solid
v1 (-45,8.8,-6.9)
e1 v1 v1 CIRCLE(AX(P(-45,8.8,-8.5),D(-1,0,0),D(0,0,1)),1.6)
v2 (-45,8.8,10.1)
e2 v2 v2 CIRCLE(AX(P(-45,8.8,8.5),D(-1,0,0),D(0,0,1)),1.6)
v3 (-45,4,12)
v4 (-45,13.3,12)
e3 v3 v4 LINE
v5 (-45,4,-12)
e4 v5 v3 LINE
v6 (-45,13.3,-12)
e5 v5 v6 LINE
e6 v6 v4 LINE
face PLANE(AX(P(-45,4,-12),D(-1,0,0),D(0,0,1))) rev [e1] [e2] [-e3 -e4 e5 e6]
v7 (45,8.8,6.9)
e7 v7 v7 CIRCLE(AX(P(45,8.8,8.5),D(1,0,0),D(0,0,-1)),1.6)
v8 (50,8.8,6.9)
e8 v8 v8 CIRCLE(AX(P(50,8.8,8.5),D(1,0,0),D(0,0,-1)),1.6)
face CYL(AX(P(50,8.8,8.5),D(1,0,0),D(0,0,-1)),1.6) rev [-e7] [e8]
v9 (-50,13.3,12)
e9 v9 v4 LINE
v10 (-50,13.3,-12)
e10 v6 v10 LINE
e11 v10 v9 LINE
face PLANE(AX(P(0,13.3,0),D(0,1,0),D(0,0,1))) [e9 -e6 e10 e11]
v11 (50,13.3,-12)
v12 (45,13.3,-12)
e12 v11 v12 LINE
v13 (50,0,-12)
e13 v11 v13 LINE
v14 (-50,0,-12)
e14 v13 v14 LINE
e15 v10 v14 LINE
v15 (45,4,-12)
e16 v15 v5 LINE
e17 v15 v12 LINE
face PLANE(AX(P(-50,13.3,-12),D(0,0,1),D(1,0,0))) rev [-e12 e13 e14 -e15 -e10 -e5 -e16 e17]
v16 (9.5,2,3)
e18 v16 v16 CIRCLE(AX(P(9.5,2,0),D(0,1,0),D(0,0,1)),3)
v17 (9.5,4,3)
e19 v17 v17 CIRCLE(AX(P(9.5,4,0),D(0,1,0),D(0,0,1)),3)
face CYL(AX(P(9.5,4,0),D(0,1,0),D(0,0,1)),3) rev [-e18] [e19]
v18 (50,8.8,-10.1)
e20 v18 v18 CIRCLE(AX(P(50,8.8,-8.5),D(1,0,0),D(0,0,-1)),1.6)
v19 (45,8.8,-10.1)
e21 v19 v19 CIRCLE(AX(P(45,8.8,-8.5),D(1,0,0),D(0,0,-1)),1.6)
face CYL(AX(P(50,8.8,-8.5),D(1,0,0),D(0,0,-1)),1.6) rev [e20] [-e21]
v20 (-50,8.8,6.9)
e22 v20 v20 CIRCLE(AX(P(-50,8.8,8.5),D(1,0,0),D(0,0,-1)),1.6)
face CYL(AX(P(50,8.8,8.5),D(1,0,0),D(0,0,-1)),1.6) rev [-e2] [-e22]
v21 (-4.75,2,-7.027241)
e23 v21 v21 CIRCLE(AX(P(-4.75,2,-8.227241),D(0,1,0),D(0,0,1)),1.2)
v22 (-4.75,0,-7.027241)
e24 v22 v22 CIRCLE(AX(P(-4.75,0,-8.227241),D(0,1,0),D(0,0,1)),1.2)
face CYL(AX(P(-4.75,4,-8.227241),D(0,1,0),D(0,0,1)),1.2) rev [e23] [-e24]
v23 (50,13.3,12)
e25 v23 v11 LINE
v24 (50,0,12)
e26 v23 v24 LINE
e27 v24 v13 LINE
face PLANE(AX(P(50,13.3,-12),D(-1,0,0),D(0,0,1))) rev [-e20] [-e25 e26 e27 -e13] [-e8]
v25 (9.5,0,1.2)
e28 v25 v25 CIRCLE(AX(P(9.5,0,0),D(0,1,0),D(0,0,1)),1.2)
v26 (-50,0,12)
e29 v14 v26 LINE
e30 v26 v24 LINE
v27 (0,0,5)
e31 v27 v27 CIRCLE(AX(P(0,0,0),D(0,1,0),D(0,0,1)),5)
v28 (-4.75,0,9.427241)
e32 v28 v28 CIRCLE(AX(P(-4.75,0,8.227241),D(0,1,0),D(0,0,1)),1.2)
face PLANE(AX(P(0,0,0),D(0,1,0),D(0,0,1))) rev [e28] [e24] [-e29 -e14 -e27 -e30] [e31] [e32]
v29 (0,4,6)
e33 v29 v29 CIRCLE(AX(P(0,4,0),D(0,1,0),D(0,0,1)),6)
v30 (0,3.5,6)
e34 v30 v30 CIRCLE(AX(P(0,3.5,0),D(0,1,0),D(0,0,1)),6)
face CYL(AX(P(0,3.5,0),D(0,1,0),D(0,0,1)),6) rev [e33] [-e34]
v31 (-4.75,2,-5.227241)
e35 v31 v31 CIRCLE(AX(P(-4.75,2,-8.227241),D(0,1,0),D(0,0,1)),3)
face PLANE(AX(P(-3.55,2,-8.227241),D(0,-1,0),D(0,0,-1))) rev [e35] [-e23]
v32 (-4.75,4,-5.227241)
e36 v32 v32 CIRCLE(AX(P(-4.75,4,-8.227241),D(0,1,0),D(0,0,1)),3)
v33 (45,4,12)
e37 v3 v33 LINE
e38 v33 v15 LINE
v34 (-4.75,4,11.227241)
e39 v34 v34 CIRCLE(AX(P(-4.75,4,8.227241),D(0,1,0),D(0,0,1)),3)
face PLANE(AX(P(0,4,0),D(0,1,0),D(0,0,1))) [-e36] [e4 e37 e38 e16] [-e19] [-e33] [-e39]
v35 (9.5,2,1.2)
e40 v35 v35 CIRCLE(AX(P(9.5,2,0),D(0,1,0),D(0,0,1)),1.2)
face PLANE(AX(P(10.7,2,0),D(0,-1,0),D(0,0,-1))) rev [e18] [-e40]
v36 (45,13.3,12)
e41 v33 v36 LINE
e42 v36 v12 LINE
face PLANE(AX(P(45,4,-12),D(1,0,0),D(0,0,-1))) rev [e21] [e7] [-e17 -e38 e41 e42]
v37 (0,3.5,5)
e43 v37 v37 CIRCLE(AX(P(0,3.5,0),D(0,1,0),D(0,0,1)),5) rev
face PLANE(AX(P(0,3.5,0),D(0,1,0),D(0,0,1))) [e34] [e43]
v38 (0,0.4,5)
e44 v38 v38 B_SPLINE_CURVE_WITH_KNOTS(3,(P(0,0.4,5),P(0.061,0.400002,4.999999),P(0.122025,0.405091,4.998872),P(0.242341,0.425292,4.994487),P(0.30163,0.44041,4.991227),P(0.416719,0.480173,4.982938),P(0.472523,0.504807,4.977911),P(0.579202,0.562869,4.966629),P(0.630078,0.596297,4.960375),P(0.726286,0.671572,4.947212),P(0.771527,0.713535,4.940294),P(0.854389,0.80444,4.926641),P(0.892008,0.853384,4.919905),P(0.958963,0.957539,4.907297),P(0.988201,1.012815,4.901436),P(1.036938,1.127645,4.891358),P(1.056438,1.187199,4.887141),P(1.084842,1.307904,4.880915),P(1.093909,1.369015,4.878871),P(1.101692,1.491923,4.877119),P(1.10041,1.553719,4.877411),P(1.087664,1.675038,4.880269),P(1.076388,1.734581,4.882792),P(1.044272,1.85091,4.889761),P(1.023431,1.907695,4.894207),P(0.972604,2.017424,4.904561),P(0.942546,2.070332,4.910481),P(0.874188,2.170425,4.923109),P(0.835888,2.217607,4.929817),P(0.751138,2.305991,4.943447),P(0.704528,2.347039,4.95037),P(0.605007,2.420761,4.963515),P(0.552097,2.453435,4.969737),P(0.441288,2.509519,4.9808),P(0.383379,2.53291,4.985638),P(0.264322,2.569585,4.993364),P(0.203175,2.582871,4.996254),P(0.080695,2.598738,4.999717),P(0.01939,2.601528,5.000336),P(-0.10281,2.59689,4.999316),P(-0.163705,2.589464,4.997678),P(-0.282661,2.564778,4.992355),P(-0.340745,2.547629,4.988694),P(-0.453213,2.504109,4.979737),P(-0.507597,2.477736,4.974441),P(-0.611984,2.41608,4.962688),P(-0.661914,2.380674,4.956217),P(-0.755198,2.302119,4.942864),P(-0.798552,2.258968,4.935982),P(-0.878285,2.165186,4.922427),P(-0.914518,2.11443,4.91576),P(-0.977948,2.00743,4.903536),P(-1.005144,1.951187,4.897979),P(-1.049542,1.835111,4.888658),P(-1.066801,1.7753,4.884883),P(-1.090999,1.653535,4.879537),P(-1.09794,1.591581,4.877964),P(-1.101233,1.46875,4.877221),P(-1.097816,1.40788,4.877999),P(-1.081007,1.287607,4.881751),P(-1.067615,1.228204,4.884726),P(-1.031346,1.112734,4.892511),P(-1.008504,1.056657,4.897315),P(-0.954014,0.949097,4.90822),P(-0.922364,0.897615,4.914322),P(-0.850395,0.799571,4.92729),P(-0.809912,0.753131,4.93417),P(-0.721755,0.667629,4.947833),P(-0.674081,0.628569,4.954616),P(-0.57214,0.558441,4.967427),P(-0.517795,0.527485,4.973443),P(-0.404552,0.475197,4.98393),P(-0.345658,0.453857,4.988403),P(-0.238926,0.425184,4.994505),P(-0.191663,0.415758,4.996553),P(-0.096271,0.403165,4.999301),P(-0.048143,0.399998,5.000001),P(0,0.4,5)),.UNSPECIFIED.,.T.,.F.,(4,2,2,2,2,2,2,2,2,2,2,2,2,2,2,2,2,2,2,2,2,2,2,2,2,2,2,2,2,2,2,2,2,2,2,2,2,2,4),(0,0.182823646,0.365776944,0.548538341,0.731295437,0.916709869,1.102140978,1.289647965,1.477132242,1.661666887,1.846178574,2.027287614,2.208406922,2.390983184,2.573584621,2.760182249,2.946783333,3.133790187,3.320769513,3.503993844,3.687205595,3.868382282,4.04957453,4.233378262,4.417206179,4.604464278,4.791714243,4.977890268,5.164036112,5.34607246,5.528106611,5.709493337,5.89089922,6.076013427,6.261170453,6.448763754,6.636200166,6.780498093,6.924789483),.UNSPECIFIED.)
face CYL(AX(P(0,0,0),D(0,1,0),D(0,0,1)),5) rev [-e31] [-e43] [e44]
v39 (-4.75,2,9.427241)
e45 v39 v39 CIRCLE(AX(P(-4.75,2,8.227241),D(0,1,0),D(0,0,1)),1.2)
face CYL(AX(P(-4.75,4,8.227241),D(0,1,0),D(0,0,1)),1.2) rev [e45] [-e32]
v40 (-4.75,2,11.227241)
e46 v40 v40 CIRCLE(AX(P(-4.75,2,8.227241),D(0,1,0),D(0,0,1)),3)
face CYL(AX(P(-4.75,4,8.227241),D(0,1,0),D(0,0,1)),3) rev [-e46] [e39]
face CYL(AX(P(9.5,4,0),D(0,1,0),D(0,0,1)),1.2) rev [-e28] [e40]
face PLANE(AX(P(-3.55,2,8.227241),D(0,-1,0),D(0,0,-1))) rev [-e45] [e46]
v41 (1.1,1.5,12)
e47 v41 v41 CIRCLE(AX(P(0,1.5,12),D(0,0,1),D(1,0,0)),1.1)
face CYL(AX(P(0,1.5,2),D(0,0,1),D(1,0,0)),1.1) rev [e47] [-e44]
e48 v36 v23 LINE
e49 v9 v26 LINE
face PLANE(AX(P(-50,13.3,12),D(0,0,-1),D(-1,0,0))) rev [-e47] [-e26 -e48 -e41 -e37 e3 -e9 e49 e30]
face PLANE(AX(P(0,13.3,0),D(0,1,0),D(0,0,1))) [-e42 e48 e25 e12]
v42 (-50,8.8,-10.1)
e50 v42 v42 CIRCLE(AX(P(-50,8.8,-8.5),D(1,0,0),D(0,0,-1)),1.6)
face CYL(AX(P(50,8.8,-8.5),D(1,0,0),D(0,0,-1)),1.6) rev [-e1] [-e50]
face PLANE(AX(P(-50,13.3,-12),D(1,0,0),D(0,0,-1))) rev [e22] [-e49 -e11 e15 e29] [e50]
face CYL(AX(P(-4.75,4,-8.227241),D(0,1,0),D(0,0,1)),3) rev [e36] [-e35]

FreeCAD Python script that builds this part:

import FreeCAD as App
import Part
import Sketcher

V = App.Vector

doc = App.newDocument("Part")
params = doc.addObject("Spreadsheet::Sheet", "Params")
for row, (alias, value) in enumerate([
    ("sketch1_width", "100 mm"),
    ("sketch1_height", "24 mm"),
    ("pad1_length", "13.3 mm"),
    ("sketch2_width", "90 mm"),
    ("sketch2_height", "24 mm"),
    ("pocket1_length", "9.3 mm"),
    ("sketch3_diameter", "3.2 mm"),
    ("hole_diameter", "3.2 mm"),
    ("sketch4_diameter", "10 mm"),
    ("sketch5_diameter", "12 mm"),
    ("pocket3_length", "0.5 mm"),
    ("sketch6_diameter", "2.4 mm"),
    ("hole2_diameter", "2.4 mm"),
    ("hole2_cbore_diameter", "6 mm"),
    ("hole2_cbore_depth", "2 mm"),
    ("sketch7_diameter", "2.2 mm"),
    ("pocket4_length", "10 mm"),
], start=1):
    params.set(f"A{row}", alias)
    params.set(f"B{row}", "=" + value)
    params.setAlias(f"B{row}", alias)

body = doc.addObject("PartDesign::Body", "Body")

# Sketch on XZ plane
sketch1 = doc.addObject("Sketcher::SketchObject", "Sketch")
body.addObject(sketch1)
sketch1.AttachmentSupport = (doc.XZ_Plane, [""])
sketch1.MapMode = "FlatFace"
sketch1.addGeometry([
    Part.LineSegment(V(-50, -12, 0), V(-50, 12, 0)),
    Part.LineSegment(V(-50, 12, 0), V(50, 12, 0)),
    Part.LineSegment(V(50, 12, 0), V(50, -12, 0)),
    Part.LineSegment(V(50, -12, 0), V(-50, -12, 0)),
], False)
sketch1.addConstraint([
    Sketcher.Constraint("Coincident", 0, 2, 1, 1),
    Sketcher.Constraint("Coincident", 1, 2, 2, 1),
    Sketcher.Constraint("Coincident", 2, 2, 3, 1),
    Sketcher.Constraint("Coincident", 3, 2, 0, 1),
    Sketcher.Constraint("Vertical", 0),
    Sketcher.Constraint("Horizontal", 1),
    Sketcher.Constraint("Vertical", 2),
    Sketcher.Constraint("Horizontal", 3),
    Sketcher.Constraint("Symmetric", 0, 2, 2, 2, -1, 1),
    Sketcher.Constraint("DistanceX", 1, 1, 1, 2, 100.0),
    Sketcher.Constraint("DistanceY", 0, 1, 0, 2, 24.0),
])
sketch1.setExpression("Constraints[9]", "Params.sketch1_width")
sketch1.setExpression("Constraints[10]", "Params.sketch1_height")
pad1 = doc.addObject("PartDesign::Pad", "Pad")
body.addObject(pad1)
pad1.Profile = sketch1
pad1.setExpression("Length", "Params.pad1_length")
pad1.Reversed = True

# Sketch on XZ plane
sketch2 = doc.addObject("Sketcher::SketchObject", "Sketch001")
body.addObject(sketch2)
sketch2.AttachmentSupport = (doc.XZ_Plane, [""])
sketch2.MapMode = "FlatFace"
sketch2.AttachmentOffset = App.Placement(V(0, 0, -13.3), App.Rotation())
sketch2.addGeometry([
    Part.LineSegment(V(-45, -12, 0), V(-45, 12, 0)),
    Part.LineSegment(V(-45, 12, 0), V(45, 12, 0)),
    Part.LineSegment(V(45, 12, 0), V(45, -12, 0)),
    Part.LineSegment(V(45, -12, 0), V(-45, -12, 0)),
], False)
sketch2.addConstraint([
    Sketcher.Constraint("Coincident", 0, 2, 1, 1),
    Sketcher.Constraint("Coincident", 1, 2, 2, 1),
    Sketcher.Constraint("Coincident", 2, 2, 3, 1),
    Sketcher.Constraint("Coincident", 3, 2, 0, 1),
    Sketcher.Constraint("Vertical", 0),
    Sketcher.Constraint("Horizontal", 1),
    Sketcher.Constraint("Vertical", 2),
    Sketcher.Constraint("Horizontal", 3),
    Sketcher.Constraint("Symmetric", 0, 2, 2, 2, -1, 1),
    Sketcher.Constraint("DistanceX", 1, 1, 1, 2, 90.0),
    Sketcher.Constraint("DistanceY", 0, 1, 0, 2, 24.0),
])
sketch2.setExpression("Constraints[9]", "Params.sketch2_width")
sketch2.setExpression("Constraints[10]", "Params.sketch2_height")
pocket1 = doc.addObject("PartDesign::Pocket", "Pocket")
body.addObject(pocket1)
pocket1.Profile = sketch2
pocket1.setExpression("Length", "Params.pocket1_length")
pocket1.Reversed = True

# Sketch on YZ plane
sketch3 = doc.addObject("Sketcher::SketchObject", "Sketch002")
body.addObject(sketch3)
sketch3.AttachmentSupport = (doc.YZ_Plane, [""])
sketch3.MapMode = "FlatFace"
sketch3.AttachmentOffset = App.Placement(V(0, 0, 50), App.Rotation())
sketch3.addGeometry([
    Part.Circle(V(8.8, -8.5, 0), V(0, 0, 1), 1.6),
    Part.Circle(V(8.8, 8.5, 0), V(0, 0, 1), 1.6),
], False)
sketch3.addConstraint([
    Sketcher.Constraint("Equal", 0, 1),
    Sketcher.Constraint("Symmetric", 0, 3, 1, 3, -1),
    Sketcher.Constraint("Diameter", 0, 3.2),
    Sketcher.Constraint("DistanceY", 0, 3, 1, 3, 17.0),
    Sketcher.Constraint("DistanceX", -1, 1, 0, 3, 8.8),
])
sketch3.setExpression("Constraints[2]", "Params.sketch3_diameter")
doc.recompute()
hole = doc.addObject("PartDesign::Hole", "Hole")
body.addObject(hole)
hole.Profile = sketch3
hole.ThreadType = "None"
hole.setExpression("Diameter", "Params.hole_diameter")
hole.DepthType = "ThroughAll"

# Sketch on XZ plane
sketch4 = doc.addObject("Sketcher::SketchObject", "Sketch003")
body.addObject(sketch4)
sketch4.AttachmentSupport = (doc.XZ_Plane, [""])
sketch4.MapMode = "FlatFace"
sketch4.AttachmentOffset = App.Placement(V(0, 0, -4), App.Rotation())
sketch4.addGeometry(Part.Circle(V(0, 0, 0), V(0, 0, 1), 5), False)
sketch4.addConstraint([
    Sketcher.Constraint("Coincident", 0, 3, -1, 1),
    Sketcher.Constraint("Diameter", 0, 10.0),
])
sketch4.setExpression("Constraints[1]", "Params.sketch4_diameter")
pocket2 = doc.addObject("PartDesign::Pocket", "Pocket001")
body.addObject(pocket2)
pocket2.Profile = sketch4
pocket2.Type = "ThroughAll"
pocket2.Reversed = True

# Sketch on XZ plane
sketch5 = doc.addObject("Sketcher::SketchObject", "Sketch004")
body.addObject(sketch5)
sketch5.AttachmentSupport = (doc.XZ_Plane, [""])
sketch5.MapMode = "FlatFace"
sketch5.AttachmentOffset = App.Placement(V(0, 0, -4), App.Rotation())
sketch5.addGeometry(Part.Circle(V(0, 0, 0), V(0, 0, 1), 6), False)
sketch5.addConstraint([
    Sketcher.Constraint("Coincident", 0, 3, -1, 1),
    Sketcher.Constraint("Diameter", 0, 12.0),
])
sketch5.setExpression("Constraints[1]", "Params.sketch5_diameter")
pocket3 = doc.addObject("PartDesign::Pocket", "Pocket002")
body.addObject(pocket3)
pocket3.Profile = sketch5
pocket3.setExpression("Length", "Params.pocket3_length")
pocket3.Reversed = True

# Sketch on XZ plane
sketch6 = doc.addObject("Sketcher::SketchObject", "Sketch005")
body.addObject(sketch6)
sketch6.AttachmentSupport = (doc.XZ_Plane, [""])
sketch6.MapMode = "FlatFace"
sketch6.AttachmentOffset = App.Placement(V(0, 0, -4), App.Rotation())
sketch6.addGeometry(Part.Circle(V(9.5, 0, 0), V(0, 0, 1), 1.2), False)
sketch6.addConstraint([
    Sketcher.Constraint("PointOnObject", 0, 3, -1),
    Sketcher.Constraint("Diameter", 0, 2.4),
    Sketcher.Constraint("DistanceX", -1, 1, 0, 3, 9.5),
])
sketch6.setExpression("Constraints[1]", "Params.sketch6_diameter")
doc.recompute()
hole2 = doc.addObject("PartDesign::Hole", "Hole001")
body.addObject(hole2)
hole2.Profile = sketch6
hole2.ThreadType = "None"
hole2.setExpression("Diameter", "Params.hole2_diameter")
hole2.DepthType = "ThroughAll"
hole2.HoleCutType = "Counterbore"
hole2.setExpression("HoleCutDiameter", "Params.hole2_cbore_diameter")
hole2.setExpression("HoleCutDepth", "Params.hole2_cbore_depth")
hole2.Reversed = True
doc.recompute()

polarpattern = doc.addObject("PartDesign::PolarPattern", "PolarPattern")
body.addObject(polarpattern)
polarpattern.Originals = [hole2]
polarpattern.Axis = (doc.Y_Axis, [""])
polarpattern.Angle = 360
polarpattern.Occurrences = 3
body.Tip = polarpattern

# Sketch on XY plane
sketch7 = doc.addObject("Sketcher::SketchObject", "Sketch006")
body.addObject(sketch7)
sketch7.AttachmentSupport = (doc.XY_Plane, [""])
sketch7.MapMode = "FlatFace"
sketch7.AttachmentOffset = App.Placement(V(0, 0, 12), App.Rotation())
sketch7.addGeometry(Part.Circle(V(0, 1.5, 0), V(0, 0, 1), 1.1), False)
sketch7.addConstraint([
    Sketcher.Constraint("PointOnObject", 0, 3, -2),
    Sketcher.Constraint("Diameter", 0, 2.2),
    Sketcher.Constraint("DistanceY", -1, 1, 0, 3, 1.5),
])
sketch7.setExpression("Constraints[1]", "Params.sketch7_diameter")
pocket4 = doc.addObject("PartDesign::Pocket", "Pocket003")
body.addObject(pocket4)
pocket4.Profile = sketch7
pocket4.setExpression("Length", "Params.pocket4_length")

doc.recompute()
